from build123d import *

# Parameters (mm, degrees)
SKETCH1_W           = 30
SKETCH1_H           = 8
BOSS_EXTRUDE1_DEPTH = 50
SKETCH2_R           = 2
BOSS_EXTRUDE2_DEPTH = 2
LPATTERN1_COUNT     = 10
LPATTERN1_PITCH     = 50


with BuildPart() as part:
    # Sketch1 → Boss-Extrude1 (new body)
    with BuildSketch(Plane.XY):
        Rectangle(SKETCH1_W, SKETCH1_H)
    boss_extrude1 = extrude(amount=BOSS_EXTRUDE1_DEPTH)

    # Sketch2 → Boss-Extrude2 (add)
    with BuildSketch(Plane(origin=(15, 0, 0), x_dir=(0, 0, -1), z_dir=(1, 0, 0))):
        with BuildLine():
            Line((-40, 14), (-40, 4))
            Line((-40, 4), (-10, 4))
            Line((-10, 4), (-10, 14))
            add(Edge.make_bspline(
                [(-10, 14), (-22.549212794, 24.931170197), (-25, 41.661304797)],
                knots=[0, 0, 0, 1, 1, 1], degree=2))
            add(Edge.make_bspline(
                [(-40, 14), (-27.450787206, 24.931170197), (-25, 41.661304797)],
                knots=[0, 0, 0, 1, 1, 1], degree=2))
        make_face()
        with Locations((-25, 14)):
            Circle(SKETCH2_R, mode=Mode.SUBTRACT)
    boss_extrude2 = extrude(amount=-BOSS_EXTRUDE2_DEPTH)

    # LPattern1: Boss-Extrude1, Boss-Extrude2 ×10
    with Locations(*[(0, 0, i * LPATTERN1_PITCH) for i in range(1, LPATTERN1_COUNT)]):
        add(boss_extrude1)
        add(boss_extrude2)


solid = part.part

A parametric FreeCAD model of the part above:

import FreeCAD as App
import Part
import Sketcher
from FreeCAD import Vector


def add_polygon(sketch, points):
    """Adds a closed chain of lines whose ends are joined by coincident constraints."""
    first, n = sketch.GeometryCount, len(points)
    for a, b in zip(points, points[1:] + points[:1]):
        sketch.addGeometry(Part.LineSegment(App.Vector(*a, 0), App.Vector(*b, 0)), False)
    for i in range(n):
        sketch.addConstraint(Sketcher.Constraint("Coincident", first + i, 2, first + (i + 1) % n, 1))

doc = App.newDocument("Part")
params = doc.addObject("Spreadsheet::Sheet", "Params")
for row, (alias, value) in enumerate([
    ("sketch1_width", "30 mm"),
    ("sketch1_height", "8 mm"),
    ("pad1_length", "50 mm"),
    ("sketch2_diameter", "4 mm"),
    ("sketch2_width", "10 mm"),
    ("pad2_length", "2 mm"),
    ("linearpattern_pitch", "50 mm"),
], start=1):
    params.set(f"A{row}", alias)
    params.set(f"B{row}", "=" + value)
    params.setAlias(f"B{row}", alias)

body = doc.addObject("PartDesign::Body", "Body")

# Sketch on XY plane
sketch1 = body.newObject("Sketcher::SketchObject", "Sketch")
sketch1.AttachmentSupport = (doc.getObject("XY_Plane"), [""])
sketch1.MapMode = "FlatFace"
add_polygon(sketch1, [(-15, 4), (-15, -4), (15, -4), (15, 4)])  # lines 0-3
sketch1.addConstraint([
    Sketcher.Constraint("Vertical", 0),
    Sketcher.Constraint("Horizontal", 1),
    Sketcher.Constraint("Vertical", 2),
    Sketcher.Constraint("Horizontal", 3),
    Sketcher.Constraint("Symmetric", 0, 2, 2, 2, -1, 1),
    Sketcher.Constraint("DistanceX", 1, 1, 1, 2, 30.0),
    Sketcher.Constraint("DistanceY", 0, 2, 0, 1, 8.0),
])
sketch1.setExpression("Constraints[9]", "Params.sketch1_width")
sketch1.setExpression("Constraints[10]", "Params.sketch1_height")
pad1 = body.newObject("PartDesign::Pad", "Pad")
pad1.Profile = sketch1
pad1.setExpression("Length", "Params.pad1_length")

# Sketch on YZ plane
sketch2 = body.newObject("Sketcher::SketchObject", "Sketch001")
sketch2.AttachmentSupport = (doc.getObject("YZ_Plane"), [""])
sketch2.MapMode = "FlatFace"
sketch2.AttachmentOffset = App.Placement(Vector(0, 0, 15), App.Rotation())
sketch2.addGeometry([
    Part.LineSegment(Vector(14, 40, 0), Vector(4, 40, 0)),  # 0
    Part.LineSegment(Vector(4, 40, 0), Vector(4, 10, 0)),  # 1
    Part.LineSegment(Vector(4, 10, 0), Vector(14, 10, 0)),  # 2
    Part.BSplineCurve([Vector(14, 10, 0), Vector(24.93117, 22.549213, 0), Vector(41.661305, 25, 0)], [3, 3], [0, 1], False, 2, [1, 1, 1], False),  # 3
    Part.BSplineCurve([Vector(14, 40, 0), Vector(24.93117, 27.450787, 0), Vector(41.661305, 25, 0)], [3, 3], [0, 1], False, 2, [1, 1, 1], False),  # 4
    Part.Circle(Vector(14, 25, 0), Vector(0, 0, 1), 2),  # 5
], False)
sketch2.addConstraint([
    Sketcher.Constraint("Block", 3),
    Sketcher.Constraint("Block", 4),
    Sketcher.Constraint("Coincident", 0, 2, 1, 1),
    Sketcher.Constraint("Coincident", 1, 2, 2, 1),
    Sketcher.Constraint("Coincident", 2, 2, 3, 1),
    Sketcher.Constraint("Coincident", 4, 1, 0, 1),
    Sketcher.Constraint("Horizontal", 0),
    Sketcher.Constraint("Vertical", 1),
    Sketcher.Constraint("Horizontal", 2),
    Sketcher.Constraint("Vertical", 5, 3, 2, 2),
    Sketcher.Constraint("Diameter", 5, 4.0),
    Sketcher.Constraint("DistanceX", 0, 2, 0, 1, 10.0),
    Sketcher.Constraint("DistanceY", -1, 1, 5, 3, 25.0),
])
sketch2.setExpression("Constraints[10]", "Params.sketch2_diameter")
sketch2.setExpression("Constraints[11]", "Params.sketch2_width")
pad2 = body.newObject("PartDesign::Pad", "Pad001")
pad2.Profile = sketch2
pad2.setExpression("Length", "Params.pad2_length")
pad2.Reversed = True
doc.recompute()

linearpattern = body.newObject("PartDesign::LinearPattern", "LinearPattern")
linearpattern.Originals = [pad1, pad2]
linearpattern.Direction = (doc.getObject("Z_Axis"), [""])
linearpattern.Mode = "offset"
linearpattern.setExpression("Offset", "Params.linearpattern_pitch")
linearpattern.Occurrences = 10
body.Tip = linearpattern

doc.recompute()
